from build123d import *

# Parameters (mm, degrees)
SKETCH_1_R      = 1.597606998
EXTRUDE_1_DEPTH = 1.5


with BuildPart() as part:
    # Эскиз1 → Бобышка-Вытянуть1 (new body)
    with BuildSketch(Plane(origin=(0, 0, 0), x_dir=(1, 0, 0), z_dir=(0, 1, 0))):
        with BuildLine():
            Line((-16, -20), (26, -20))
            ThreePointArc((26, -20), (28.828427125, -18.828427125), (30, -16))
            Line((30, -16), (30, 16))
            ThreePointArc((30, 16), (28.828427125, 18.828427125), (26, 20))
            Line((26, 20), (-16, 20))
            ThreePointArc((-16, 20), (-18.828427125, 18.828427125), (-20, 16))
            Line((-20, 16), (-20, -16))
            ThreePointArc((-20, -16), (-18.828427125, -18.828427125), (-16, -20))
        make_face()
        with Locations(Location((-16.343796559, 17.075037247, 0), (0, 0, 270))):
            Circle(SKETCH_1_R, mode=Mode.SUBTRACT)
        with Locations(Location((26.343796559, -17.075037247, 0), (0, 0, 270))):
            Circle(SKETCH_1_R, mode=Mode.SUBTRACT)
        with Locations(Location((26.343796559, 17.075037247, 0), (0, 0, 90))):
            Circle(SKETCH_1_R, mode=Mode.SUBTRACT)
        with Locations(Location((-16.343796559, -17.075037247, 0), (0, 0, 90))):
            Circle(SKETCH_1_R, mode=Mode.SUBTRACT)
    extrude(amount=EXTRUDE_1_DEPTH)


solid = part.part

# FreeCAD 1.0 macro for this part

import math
import FreeCAD as App
import Part
import Sketcher
from FreeCAD import Vector

doc = App.newDocument("Part")
body = doc.addObject("PartDesign::Body", "Body")

# Sketch on XZ plane
sketch1 = body.newObject("Sketcher::SketchObject", "Sketch")
sketch1.AttachmentSupport = (doc.getObject("XZ_Plane"), [""])
sketch1.MapMode = "FlatFace"
sketch1.addGeometry(Part.LineSegment(Vector(-16, 20, 0), Vector(26, 20, 0)), False)
sketch1.addGeometry(Part.ArcOfCircle(Part.Circle(Vector(26, 16, 0), Vector(0, 0, 1), 4), math.radians(0), math.radians(90)), False)
sketch1.addGeometry(Part.LineSegment(Vector(30, 16, 0), Vector(30, -16, 0)), False)
sketch1.addGeometry(Part.ArcOfCircle(Part.Circle(Vector(26, -16, 0), Vector(0, 0, 1), 4), math.radians(-90), math.radians(0)), False)
sketch1.addGeometry(Part.LineSegment(Vector(26, -20, 0), Vector(-16, -20, 0)), False)
sketch1.addGeometry(Part.ArcOfCircle(Part.Circle(Vector(-16, -16, 0), Vector(0, 0, 1), 4), math.radians(180), math.radians(270)), False)
sketch1.addGeometry(Part.LineSegment(Vector(-20, -16, 0), Vector(-20, 16, 0)), False)
sketch1.addGeometry(Part.ArcOfCircle(Part.Circle(Vector(-16, 16, 0), Vector(0, 0, 1), 4), math.radians(90), math.radians(180)), False)
sketch1.addGeometry(Part.Circle(Vector(-16.343797, 17.075037, 0), Vector(0, 0, 1), 1.597607), False)
sketch1.addGeometry(Part.Circle(Vector(26.343797, 17.075037, 0), Vector(0, 0, 1), 1.597607), False)
sketch1.addGeometry(Part.Circle(Vector(-16.343797, -17.075037, 0), Vector(0, 0, 1), 1.597607), False)
sketch1.addGeometry(Part.Circle(Vector(26.343797, -17.075037, 0), Vector(0, 0, 1), 1.597607), False)
sketch1.addConstraint(Sketcher.Constraint("Tangent", 0, 2, 1, 2))
sketch1.addConstraint(Sketcher.Constraint("Tangent", 1, 1, 2, 1))
sketch1.addConstraint(Sketcher.Constraint("Tangent", 2, 2, 3, 2))
sketch1.addConstraint(Sketcher.Constraint("Tangent", 3, 1, 4, 1))
sketch1.addConstraint(Sketcher.Constraint("Tangent", 4, 2, 5, 2))
sketch1.addConstraint(Sketcher.Constraint("Tangent", 5, 1, 6, 1))
sketch1.addConstraint(Sketcher.Constraint("Tangent", 6, 2, 7, 2))
sketch1.addConstraint(Sketcher.Constraint("Tangent", 7, 1, 0, 1))
sketch1.addConstraint(Sketcher.Constraint("Horizontal", 0))
sketch1.addConstraint(Sketcher.Constraint("Vertical", 2))
sketch1.addConstraint(Sketcher.Constraint("Horizontal", 4))
sketch1.addConstraint(Sketcher.Constraint("Vertical", 6))
sketch1.addConstraint(Sketcher.Constraint("Equal", 1, 3))
sketch1.addConstraint(Sketcher.Constraint("Equal", 3, 5))
sketch1.addConstraint(Sketcher.Constraint("Equal", 5, 7))
sketch1.addConstraint(Sketcher.Constraint("Equal", 8, 9))
sketch1.addConstraint(Sketcher.Constraint("Equal", 9, 10))
sketch1.addConstraint(Sketcher.Constraint("Equal", 10, 11))
sketch1.addConstraint(Sketcher.Constraint("Symmetric", 8, 3, 10, 3, -1))
sketch1.addConstraint(Sketcher.Constraint("Symmetric", 9, 3, 11, 3, -1))
sketch1.addConstraint(Sketcher.Constraint("Horizontal", 8, 3, 9, 3))
sketch1.addConstraint(Sketcher.Constraint("Radius", 1, 4.0))
sketch1.addConstraint(Sketcher.Constraint("DistanceX", 0, 1, 0, 2, 42.0))
sketch1.addConstraint(Sketcher.Constraint("DistanceY", 2, 2, 2, 1, 32.0))
sketch1.addConstraint(Sketcher.Constraint("DistanceX", -1, 1, 1, 3, 26.0))
sketch1.addConstraint(Sketcher.Constraint("DistanceY", -1, 1, 1, 3, 16.0))
sketch1.addConstraint(Sketcher.Constraint("Diameter", 8, 3.195214))
sketch1.addConstraint(Sketcher.Constraint("DistanceX", 8, 3, -1, 1, 16.343797))
sketch1.addConstraint(Sketcher.Constraint("DistanceY", -1, 1, 8, 3, 17.075037))
sketch1.addConstraint(Sketcher.Constraint("DistanceX", -1, 1, 9, 3, 26.343797))
pad1 = body.newObject("PartDesign::Pad", "Pad")
pad1.Profile = sketch1
pad1.Length = 1.5
pad1.Reversed = True

doc.recompute()
